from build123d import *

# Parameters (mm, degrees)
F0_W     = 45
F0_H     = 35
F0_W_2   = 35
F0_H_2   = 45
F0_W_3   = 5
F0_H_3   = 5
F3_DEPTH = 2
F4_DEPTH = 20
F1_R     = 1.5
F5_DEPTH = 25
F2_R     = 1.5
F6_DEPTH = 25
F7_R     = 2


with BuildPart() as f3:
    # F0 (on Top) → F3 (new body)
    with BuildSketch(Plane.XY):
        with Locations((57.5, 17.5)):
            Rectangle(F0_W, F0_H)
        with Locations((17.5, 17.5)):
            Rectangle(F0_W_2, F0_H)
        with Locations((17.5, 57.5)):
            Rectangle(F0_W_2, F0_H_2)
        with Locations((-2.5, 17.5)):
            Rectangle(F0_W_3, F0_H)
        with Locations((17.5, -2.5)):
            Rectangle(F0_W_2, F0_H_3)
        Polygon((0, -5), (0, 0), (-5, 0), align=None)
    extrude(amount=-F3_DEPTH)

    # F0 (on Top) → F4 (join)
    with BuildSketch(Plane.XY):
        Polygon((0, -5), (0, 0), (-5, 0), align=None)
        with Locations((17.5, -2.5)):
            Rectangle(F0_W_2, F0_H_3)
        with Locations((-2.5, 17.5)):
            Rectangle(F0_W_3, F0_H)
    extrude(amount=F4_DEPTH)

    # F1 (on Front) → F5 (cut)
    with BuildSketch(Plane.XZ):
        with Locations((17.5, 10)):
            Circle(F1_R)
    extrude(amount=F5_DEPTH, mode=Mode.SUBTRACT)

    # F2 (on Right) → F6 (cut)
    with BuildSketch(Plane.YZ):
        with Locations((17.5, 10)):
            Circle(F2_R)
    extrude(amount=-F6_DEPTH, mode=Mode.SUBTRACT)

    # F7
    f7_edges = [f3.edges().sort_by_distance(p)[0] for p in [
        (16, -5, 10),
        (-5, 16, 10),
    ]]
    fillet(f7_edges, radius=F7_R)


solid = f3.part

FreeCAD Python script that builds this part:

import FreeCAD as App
import Part
import Sketcher

V = App.Vector
Q = App.Units.Quantity


def edges_at(feature, points):
    """Names of the edges that pass closest to the given points."""
    edges = feature.Shape.Edges
    near = lambda p: min(range(len(edges)), key=lambda i: edges[i].distToShape(Part.Vertex(*p))[0])
    return sorted({f"Edge{near(p) + 1}" for p in points})

doc = App.newDocument("Part")
params = doc.addObject("Spreadsheet::Sheet", "Params")
for row, (alias, value) in enumerate([
    ("sketch1_width", "45 mm"),
    ("sketch1_width2", "35 mm"),
    ("sketch1_width3", "5 mm"),
    ("pad1_length", "2 mm"),
    ("sketch2_width", "35 mm"),
    ("sketch2_width2", "5 mm"),
    ("pad2_length", "20 mm"),
    ("sketch3_diameter", "3 mm"),
    ("pocket1_length", "25 mm"),
    ("sketch4_diameter", "3 mm"),
    ("pocket2_length", "25 mm"),
    ("fillet_radius", "2 mm"),
], start=1):
    params.set(f"A{row}", alias)
    params.set(f"B{row}", "=" + value)
    params.setAlias(f"B{row}", alias)

body = doc.addObject("PartDesign::Body", "Body")

sketch1 = body.newObject("Sketcher::SketchObject", "Sketch")
sketch1.AttachmentSupport = (doc.getObject("XY_Plane"), [""])
sketch1.MapMode = "FlatFace"
sketch1.addGeometry([
    Part.LineSegment(V(80, 0, 0), V(80, 35, 0)),
    Part.LineSegment(V(80, 35, 0), V(35, 35, 0)),
    Part.LineSegment(V(35, 35, 0), V(35, 80, 0)),
    Part.LineSegment(V(35, 80, 0), V(0, 80, 0)),
    Part.LineSegment(V(0, 80, 0), V(0, 35, 0)),
    Part.LineSegment(V(0, 35, 0), V(-5, 35, 0)),
    Part.LineSegment(V(-5, 35, 0), V(-5, 0, 0)),
    Part.LineSegment(V(-5, 0, 0), V(0, -5, 0)),
    Part.LineSegment(V(0, -5, 0), V(35, -5, 0)),
    Part.LineSegment(V(35, -5, 0), V(35, 0, 0)),
    Part.LineSegment(V(35, 0, 0), V(80, 0, 0)),
], False)
sketch1.addConstraint([
    Sketcher.Constraint("Coincident", 0, 2, 1, 1),
    Sketcher.Constraint("Coincident", 1, 2, 2, 1),
    Sketcher.Constraint("Coincident", 2, 2, 3, 1),
    Sketcher.Constraint("Coincident", 3, 2, 4, 1),
    Sketcher.Constraint("Coincident", 4, 2, 5, 1),
    Sketcher.Constraint("Coincident", 5, 2, 6, 1),
    Sketcher.Constraint("Coincident", 6, 2, 7, 1),
    Sketcher.Constraint("Coincident", 7, 2, 8, 1),
    Sketcher.Constraint("Coincident", 8, 2, 9, 1),
    Sketcher.Constraint("Coincident", 9, 2, 10, 1),
    Sketcher.Constraint("Coincident", 10, 2, 0, 1),
    Sketcher.Constraint("Vertical", 0),
    Sketcher.Constraint("Horizontal", 1),
    Sketcher.Constraint("Vertical", 2),
    Sketcher.Constraint("Horizontal", 3),
    Sketcher.Constraint("Vertical", 4),
    Sketcher.Constraint("Horizontal", 5),
    Sketcher.Constraint("Vertical", 6),
    Sketcher.Constraint("Horizontal", 8),
    Sketcher.Constraint("Vertical", 9),
    Sketcher.Constraint("Horizontal", 10),
    Sketcher.Constraint("PointOnObject", 3, 2, -2),
    Sketcher.Constraint("PointOnObject", 6, 2, -1),
    Sketcher.Constraint("PointOnObject", 7, 2, -2),
    Sketcher.Constraint("PointOnObject", 9, 2, -1),
    Sketcher.Constraint("Horizontal", 1, 2, 4, 2),
    Sketcher.Constraint("Vertical", 2, 2, 8, 2),
    Sketcher.Constraint("Equal", 8, 0),
    Sketcher.Constraint("Equal", 10, 2),
    Sketcher.Constraint("Equal", 5, 9),
    Sketcher.Constraint("DistanceX", 1, 2, 1, 1, Q("45 mm")),
    Sketcher.Constraint("DistanceX", 3, 2, 3, 1, Q("35 mm")),
    Sketcher.Constraint("DistanceX", 5, 2, 5, 1, Q("5 mm")),
])
sketch1.setExpression("Constraints[30]", "Params.sketch1_width")
sketch1.setExpression("Constraints[31]", "Params.sketch1_width2")
sketch1.setExpression("Constraints[32]", "Params.sketch1_width3")
pad1 = body.newObject("PartDesign::Pad", "Pad")
pad1.Profile = sketch1
pad1.setExpression("Length", "Params.pad1_length")
pad1.Reversed = True

sketch2 = body.newObject("Sketcher::SketchObject", "Sketch001")
sketch2.AttachmentSupport = (doc.getObject("XY_Plane"), [""])
sketch2.MapMode = "FlatFace"
sketch2.addGeometry([
    Part.LineSegment(V(-5, 0, 0), V(0, -5, 0)),
    Part.LineSegment(V(0, -5, 0), V(35, -5, 0)),
    Part.LineSegment(V(35, -5, 0), V(35, 0, 0)),
    Part.LineSegment(V(35, 0, 0), V(0, 0, 0)),
    Part.LineSegment(V(0, 0, 0), V(0, 35, 0)),
    Part.LineSegment(V(0, 35, 0), V(-5, 35, 0)),
    Part.LineSegment(V(-5, 35, 0), V(-5, 0, 0)),
], False)
sketch2.addConstraint([
    Sketcher.Constraint("Coincident", 0, 2, 1, 1),
    Sketcher.Constraint("Coincident", 1, 2, 2, 1),
    Sketcher.Constraint("Coincident", 2, 2, 3, 1),
    Sketcher.Constraint("Coincident", 3, 2, 4, 1),
    Sketcher.Constraint("Coincident", 4, 2, 5, 1),
    Sketcher.Constraint("Coincident", 5, 2, 6, 1),
    Sketcher.Constraint("Coincident", 6, 2, 0, 1),
    Sketcher.Constraint("Horizontal", 1),
    Sketcher.Constraint("Vertical", 2),
    Sketcher.Constraint("Horizontal", 3),
    Sketcher.Constraint("Vertical", 4),
    Sketcher.Constraint("Horizontal", 5),
    Sketcher.Constraint("Vertical", 6),
    Sketcher.Constraint("Coincident", 3, 2, -1, 1),
    Sketcher.Constraint("PointOnObject", 0, 2, -2),
    Sketcher.Constraint("PointOnObject", 6, 2, -1),
    Sketcher.Constraint("Equal", 5, 2),
    Sketcher.Constraint("Equal", 3, 4),
    Sketcher.Constraint("DistanceX", 1, 1, 1, 2, Q("35 mm")),
    Sketcher.Constraint("DistanceX", 5, 2, 5, 1, Q("5 mm")),
])
sketch2.setExpression("Constraints[18]", "Params.sketch2_width")
sketch2.setExpression("Constraints[19]", "Params.sketch2_width2")
pad2 = body.newObject("PartDesign::Pad", "Pad001")
pad2.Profile = sketch2
pad2.setExpression("Length", "Params.pad2_length")

sketch3 = body.newObject("Sketcher::SketchObject", "Sketch002")
sketch3.AttachmentSupport = (doc.getObject("XZ_Plane"), [""])
sketch3.MapMode = "FlatFace"
sketch3.addGeometry(Part.Circle(V(17.5, 10, 0), V(0, 0, 1), 1.5), False)
sketch3.addConstraint([
    Sketcher.Constraint("Diameter", 0, Q("3 mm")),
    Sketcher.Constraint("DistanceY", -1, 1, 0, 3, Q("10 mm")),
    Sketcher.Constraint("DistanceX", -1, 1, 0, 3, Q("17.5 mm")),
])
sketch3.setExpression("Constraints[0]", "Params.sketch3_diameter")
pocket1 = body.newObject("PartDesign::Pocket", "Pocket")
pocket1.Profile = sketch3
pocket1.setExpression("Length", "Params.pocket1_length")
pocket1.Reversed = True

sketch4 = body.newObject("Sketcher::SketchObject", "Sketch003")
sketch4.AttachmentSupport = (doc.getObject("YZ_Plane"), [""])
sketch4.MapMode = "FlatFace"
sketch4.addGeometry(Part.Circle(V(17.5, 10, 0), V(0, 0, 1), 1.5), False)
sketch4.addConstraint([
    Sketcher.Constraint("Diameter", 0, Q("3 mm")),
    Sketcher.Constraint("DistanceY", -1, 1, 0, 3, Q("10 mm")),
    Sketcher.Constraint("DistanceX", -1, 1, 0, 3, Q("17.5 mm")),
])
sketch4.setExpression("Constraints[0]", "Params.sketch4_diameter")
pocket2 = body.newObject("PartDesign::Pocket", "Pocket001")
pocket2.Profile = sketch4
pocket2.setExpression("Length", "Params.pocket2_length")
doc.recompute()

fillet = body.newObject("PartDesign::Fillet", "Fillet")
fillet.Base = (pocket2, edges_at(pocket2, [(16, -5, 10), (-5, 16, 10)]))
fillet.setExpression("Radius", "Params.fillet_radius")

doc.recompute()
